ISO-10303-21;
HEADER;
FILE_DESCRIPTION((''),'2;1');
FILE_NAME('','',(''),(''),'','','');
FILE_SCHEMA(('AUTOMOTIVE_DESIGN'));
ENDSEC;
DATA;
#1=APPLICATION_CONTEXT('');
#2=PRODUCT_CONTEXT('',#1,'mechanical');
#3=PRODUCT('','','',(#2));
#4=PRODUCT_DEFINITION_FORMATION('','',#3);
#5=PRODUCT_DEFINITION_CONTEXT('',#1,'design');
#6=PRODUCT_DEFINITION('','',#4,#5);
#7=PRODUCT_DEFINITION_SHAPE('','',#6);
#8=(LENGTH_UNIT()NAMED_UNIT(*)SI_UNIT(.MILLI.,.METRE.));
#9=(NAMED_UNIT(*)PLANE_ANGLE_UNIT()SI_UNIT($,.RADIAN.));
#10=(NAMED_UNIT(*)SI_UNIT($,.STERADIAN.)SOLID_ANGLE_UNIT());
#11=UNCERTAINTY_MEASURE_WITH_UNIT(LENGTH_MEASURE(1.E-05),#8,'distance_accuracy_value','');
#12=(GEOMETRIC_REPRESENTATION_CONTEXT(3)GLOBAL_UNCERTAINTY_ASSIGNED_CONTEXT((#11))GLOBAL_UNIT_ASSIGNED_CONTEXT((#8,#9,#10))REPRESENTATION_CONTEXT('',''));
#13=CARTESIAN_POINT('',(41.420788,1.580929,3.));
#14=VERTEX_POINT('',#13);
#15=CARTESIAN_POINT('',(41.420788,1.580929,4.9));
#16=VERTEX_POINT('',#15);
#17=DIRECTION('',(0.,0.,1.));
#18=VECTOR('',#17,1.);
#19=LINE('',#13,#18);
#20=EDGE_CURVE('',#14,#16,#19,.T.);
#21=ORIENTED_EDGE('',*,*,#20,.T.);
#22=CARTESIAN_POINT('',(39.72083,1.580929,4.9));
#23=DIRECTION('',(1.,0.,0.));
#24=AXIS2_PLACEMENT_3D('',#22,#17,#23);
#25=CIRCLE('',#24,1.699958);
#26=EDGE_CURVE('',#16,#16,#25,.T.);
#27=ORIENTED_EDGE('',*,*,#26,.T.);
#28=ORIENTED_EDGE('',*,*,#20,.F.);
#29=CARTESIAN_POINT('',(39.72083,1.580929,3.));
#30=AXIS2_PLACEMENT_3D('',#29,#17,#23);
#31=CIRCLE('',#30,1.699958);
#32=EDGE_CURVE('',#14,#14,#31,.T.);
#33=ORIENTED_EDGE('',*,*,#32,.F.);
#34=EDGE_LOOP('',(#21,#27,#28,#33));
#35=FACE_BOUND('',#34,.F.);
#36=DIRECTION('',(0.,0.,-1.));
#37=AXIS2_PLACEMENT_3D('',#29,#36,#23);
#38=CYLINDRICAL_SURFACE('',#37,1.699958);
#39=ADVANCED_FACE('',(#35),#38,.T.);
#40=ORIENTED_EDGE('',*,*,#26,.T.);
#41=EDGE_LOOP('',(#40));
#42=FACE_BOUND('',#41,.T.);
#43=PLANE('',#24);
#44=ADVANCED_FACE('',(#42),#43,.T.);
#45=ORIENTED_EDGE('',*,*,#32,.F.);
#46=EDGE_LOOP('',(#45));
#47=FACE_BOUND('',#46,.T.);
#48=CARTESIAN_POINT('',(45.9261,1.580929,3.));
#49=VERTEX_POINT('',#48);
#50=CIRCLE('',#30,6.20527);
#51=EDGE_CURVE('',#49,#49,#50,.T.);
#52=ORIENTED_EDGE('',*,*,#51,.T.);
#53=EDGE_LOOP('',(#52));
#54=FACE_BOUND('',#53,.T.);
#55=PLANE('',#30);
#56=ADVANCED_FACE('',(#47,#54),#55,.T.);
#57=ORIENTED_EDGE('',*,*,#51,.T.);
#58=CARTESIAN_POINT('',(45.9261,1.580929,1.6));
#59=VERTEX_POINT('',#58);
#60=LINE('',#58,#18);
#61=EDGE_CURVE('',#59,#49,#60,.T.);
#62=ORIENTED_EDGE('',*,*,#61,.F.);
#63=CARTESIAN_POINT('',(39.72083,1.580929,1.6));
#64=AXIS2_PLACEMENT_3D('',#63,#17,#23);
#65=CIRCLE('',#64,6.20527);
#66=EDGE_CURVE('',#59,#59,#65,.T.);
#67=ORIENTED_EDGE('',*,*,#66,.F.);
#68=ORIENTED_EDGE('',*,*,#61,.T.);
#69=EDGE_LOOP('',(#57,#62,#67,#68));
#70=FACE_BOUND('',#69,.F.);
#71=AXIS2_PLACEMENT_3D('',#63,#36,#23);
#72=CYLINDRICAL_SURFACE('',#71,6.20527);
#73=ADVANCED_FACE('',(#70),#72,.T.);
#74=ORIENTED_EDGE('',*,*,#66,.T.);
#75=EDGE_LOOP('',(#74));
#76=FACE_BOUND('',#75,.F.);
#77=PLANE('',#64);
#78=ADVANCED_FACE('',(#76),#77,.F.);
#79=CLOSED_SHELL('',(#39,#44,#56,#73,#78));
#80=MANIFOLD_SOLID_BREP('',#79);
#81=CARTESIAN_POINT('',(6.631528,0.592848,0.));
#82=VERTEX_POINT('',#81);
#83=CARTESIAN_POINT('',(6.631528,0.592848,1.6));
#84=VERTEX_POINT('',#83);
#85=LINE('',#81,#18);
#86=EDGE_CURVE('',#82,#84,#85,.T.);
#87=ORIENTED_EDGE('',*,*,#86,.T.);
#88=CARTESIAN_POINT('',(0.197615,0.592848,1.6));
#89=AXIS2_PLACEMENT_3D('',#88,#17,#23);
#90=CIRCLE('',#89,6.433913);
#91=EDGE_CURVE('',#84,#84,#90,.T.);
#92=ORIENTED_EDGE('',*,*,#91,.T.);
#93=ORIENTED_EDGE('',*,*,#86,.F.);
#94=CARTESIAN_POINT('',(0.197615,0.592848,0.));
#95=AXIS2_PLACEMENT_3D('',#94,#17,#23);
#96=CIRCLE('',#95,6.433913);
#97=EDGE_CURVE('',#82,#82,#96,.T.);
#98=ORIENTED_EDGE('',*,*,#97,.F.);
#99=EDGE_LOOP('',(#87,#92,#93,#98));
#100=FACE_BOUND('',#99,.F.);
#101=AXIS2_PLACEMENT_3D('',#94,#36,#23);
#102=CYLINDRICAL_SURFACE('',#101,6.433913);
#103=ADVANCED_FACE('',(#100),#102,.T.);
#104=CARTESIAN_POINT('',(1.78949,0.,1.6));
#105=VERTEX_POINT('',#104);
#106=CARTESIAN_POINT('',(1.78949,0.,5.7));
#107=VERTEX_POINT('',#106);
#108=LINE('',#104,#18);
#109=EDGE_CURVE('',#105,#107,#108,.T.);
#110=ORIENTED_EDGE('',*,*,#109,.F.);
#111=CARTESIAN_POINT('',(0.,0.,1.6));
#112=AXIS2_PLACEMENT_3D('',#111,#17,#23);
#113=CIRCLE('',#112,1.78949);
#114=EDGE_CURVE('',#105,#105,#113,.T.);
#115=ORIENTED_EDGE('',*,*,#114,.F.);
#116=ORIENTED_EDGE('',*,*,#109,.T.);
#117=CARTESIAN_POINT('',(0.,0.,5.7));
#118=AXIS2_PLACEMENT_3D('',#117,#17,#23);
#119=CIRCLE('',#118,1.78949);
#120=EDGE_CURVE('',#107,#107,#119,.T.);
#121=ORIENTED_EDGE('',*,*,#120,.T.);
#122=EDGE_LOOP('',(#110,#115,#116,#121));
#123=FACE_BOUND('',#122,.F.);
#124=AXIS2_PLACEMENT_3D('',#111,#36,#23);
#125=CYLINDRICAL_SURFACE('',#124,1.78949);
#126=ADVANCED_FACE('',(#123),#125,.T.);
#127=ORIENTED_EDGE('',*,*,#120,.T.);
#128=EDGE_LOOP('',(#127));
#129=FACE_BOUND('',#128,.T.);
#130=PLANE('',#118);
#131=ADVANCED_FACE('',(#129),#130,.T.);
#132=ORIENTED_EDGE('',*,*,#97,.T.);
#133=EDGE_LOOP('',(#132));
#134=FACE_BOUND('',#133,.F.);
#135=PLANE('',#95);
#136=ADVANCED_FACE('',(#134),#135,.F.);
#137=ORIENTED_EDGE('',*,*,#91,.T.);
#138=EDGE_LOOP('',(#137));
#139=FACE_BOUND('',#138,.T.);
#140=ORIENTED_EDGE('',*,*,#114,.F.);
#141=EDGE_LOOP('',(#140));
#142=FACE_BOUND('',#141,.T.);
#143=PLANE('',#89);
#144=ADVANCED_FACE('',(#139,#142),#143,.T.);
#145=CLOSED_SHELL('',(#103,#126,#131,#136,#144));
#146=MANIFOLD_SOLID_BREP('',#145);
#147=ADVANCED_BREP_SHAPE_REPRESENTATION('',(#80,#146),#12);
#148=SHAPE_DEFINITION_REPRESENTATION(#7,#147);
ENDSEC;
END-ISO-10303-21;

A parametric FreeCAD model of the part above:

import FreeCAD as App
import Part
import Sketcher

V = App.Vector
Q = App.Units.Quantity

doc = App.newDocument("Part")
body = doc.addObject("PartDesign::Body", "Body")

sketch1 = doc.addObject("Sketcher::SketchObject", "Sketch")
body.addObject(sketch1)
sketch1.AttachmentSupport = (doc.XY_Plane, [""])
sketch1.MapMode = "FlatFace"
sketch1.addGeometry(Part.Circle(V(0, 1, 0), V(0, 0, 1), 6), False)
sketch1.addConstraint(Sketcher.Constraint("Diameter", 0, Q("12.867826 mm")))
sketch1.addConstraint(Sketcher.Constraint("DistanceY", -1, 1, 0, 3, Q("0.592848 mm")))
sketch1.addConstraint(Sketcher.Constraint("DistanceX", -1, 1, 0, 3, Q("0.197615 mm")))
pad1 = doc.addObject("PartDesign::Pad", "Pad")
body.addObject(pad1)
pad1.Profile = sketch1
pad1.Length = 1.6

sketch2 = doc.addObject("Sketcher::SketchObject", "Sketch001")
body.addObject(sketch2)
sketch2.AttachmentSupport = (doc.XY_Plane, [""])
sketch2.MapMode = "FlatFace"
sketch2.AttachmentOffset = App.Placement(V(0, 0, 1.6), App.Rotation())
sketch2.addGeometry(Part.Circle(V(0, 0, 0), V(0, 0, 1), 1.8), False)
sketch2.addConstraint(Sketcher.Constraint("Coincident", 0, 3, -1, 1))
sketch2.addConstraint(Sketcher.Constraint("Diameter", 0, Q("3.57898 mm")))
pad2 = doc.addObject("PartDesign::Pad", "Pad001")
body.addObject(pad2)
pad2.Profile = sketch2
pad2.Length = 4.1
body2 = doc.addObject("PartDesign::Body", "Body001")

sketch3 = doc.addObject("Sketcher::SketchObject", "Sketch002")
body2.addObject(sketch3)
sketch3.AttachmentSupport = (doc.getObject("XY_Plane001"), [""])
sketch3.MapMode = "FlatFace"
sketch3.AttachmentOffset = App.Placement(V(0, 0, 1.6), App.Rotation())
sketch3.addGeometry(Part.Circle(V(40, 2, 0), V(0, 0, 1), 6), False)
sketch3.addConstraint(Sketcher.Constraint("Diameter", 0, Q("12.41054 mm")))
sketch3.addConstraint(Sketcher.Constraint("DistanceX", -1, 1, 0, 3, Q("39.72083 mm")))
sketch3.addConstraint(Sketcher.Constraint("DistanceY", -1, 1, 0, 3, Q("1.580929 mm")))
pad3 = doc.addObject("PartDesign::Pad", "Pad002")
body2.addObject(pad3)
pad3.Profile = sketch3
pad3.Length = 1.4

sketch4 = doc.addObject("Sketcher::SketchObject", "Sketch003")
body2.addObject(sketch4)
sketch4.AttachmentSupport = (doc.getObject("XY_Plane001"), [""])
sketch4.MapMode = "FlatFace"
sketch4.AttachmentOffset = App.Placement(V(0, 0, 3), App.Rotation())
sketch4.addGeometry(Part.Circle(V(39.7, 1.6, 0), V(0, 0, 1), 1.7), False)
sketch4.addConstraint(Sketcher.Constraint("Diameter", 0, Q("3.399916 mm")))
sketch4.addConstraint(Sketcher.Constraint("DistanceX", -1, 1, 0, 3, Q("39.72083 mm")))
sketch4.addConstraint(Sketcher.Constraint("DistanceY", -1, 1, 0, 3, Q("1.580929 mm")))
pad4 = doc.addObject("PartDesign::Pad", "Pad003")
body2.addObject(pad4)
pad4.Profile = sketch4
pad4.Length = 3.8

sketch5 = doc.addObject("Sketcher::SketchObject", "Sketch004")
body2.addObject(sketch5)
sketch5.AttachmentSupport = (doc.getObject("XY_Plane001"), [""])
sketch5.MapMode = "FlatFace"
sketch5.AttachmentOffset = App.Placement(V(0, 0, 6.8), App.Rotation())
sketch5.addGeometry(Part.Circle(V(39.7, 1.6, 0), V(0, 0, 1), 1.7), False)
sketch5.addConstraint(Sketcher.Constraint("Diameter", 0, Q("3.399916 mm")))
sketch5.addConstraint(Sketcher.Constraint("DistanceX", -1, 1, 0, 3, Q("39.72083 mm")))
sketch5.addConstraint(Sketcher.Constraint("DistanceY", -1, 1, 0, 3, Q("1.580929 mm")))
pocket1 = doc.addObject("PartDesign::Pocket", "Pocket")
body2.addObject(pocket1)
pocket1.Profile = sketch5
pocket1.Length = 1.9

doc.recompute()
